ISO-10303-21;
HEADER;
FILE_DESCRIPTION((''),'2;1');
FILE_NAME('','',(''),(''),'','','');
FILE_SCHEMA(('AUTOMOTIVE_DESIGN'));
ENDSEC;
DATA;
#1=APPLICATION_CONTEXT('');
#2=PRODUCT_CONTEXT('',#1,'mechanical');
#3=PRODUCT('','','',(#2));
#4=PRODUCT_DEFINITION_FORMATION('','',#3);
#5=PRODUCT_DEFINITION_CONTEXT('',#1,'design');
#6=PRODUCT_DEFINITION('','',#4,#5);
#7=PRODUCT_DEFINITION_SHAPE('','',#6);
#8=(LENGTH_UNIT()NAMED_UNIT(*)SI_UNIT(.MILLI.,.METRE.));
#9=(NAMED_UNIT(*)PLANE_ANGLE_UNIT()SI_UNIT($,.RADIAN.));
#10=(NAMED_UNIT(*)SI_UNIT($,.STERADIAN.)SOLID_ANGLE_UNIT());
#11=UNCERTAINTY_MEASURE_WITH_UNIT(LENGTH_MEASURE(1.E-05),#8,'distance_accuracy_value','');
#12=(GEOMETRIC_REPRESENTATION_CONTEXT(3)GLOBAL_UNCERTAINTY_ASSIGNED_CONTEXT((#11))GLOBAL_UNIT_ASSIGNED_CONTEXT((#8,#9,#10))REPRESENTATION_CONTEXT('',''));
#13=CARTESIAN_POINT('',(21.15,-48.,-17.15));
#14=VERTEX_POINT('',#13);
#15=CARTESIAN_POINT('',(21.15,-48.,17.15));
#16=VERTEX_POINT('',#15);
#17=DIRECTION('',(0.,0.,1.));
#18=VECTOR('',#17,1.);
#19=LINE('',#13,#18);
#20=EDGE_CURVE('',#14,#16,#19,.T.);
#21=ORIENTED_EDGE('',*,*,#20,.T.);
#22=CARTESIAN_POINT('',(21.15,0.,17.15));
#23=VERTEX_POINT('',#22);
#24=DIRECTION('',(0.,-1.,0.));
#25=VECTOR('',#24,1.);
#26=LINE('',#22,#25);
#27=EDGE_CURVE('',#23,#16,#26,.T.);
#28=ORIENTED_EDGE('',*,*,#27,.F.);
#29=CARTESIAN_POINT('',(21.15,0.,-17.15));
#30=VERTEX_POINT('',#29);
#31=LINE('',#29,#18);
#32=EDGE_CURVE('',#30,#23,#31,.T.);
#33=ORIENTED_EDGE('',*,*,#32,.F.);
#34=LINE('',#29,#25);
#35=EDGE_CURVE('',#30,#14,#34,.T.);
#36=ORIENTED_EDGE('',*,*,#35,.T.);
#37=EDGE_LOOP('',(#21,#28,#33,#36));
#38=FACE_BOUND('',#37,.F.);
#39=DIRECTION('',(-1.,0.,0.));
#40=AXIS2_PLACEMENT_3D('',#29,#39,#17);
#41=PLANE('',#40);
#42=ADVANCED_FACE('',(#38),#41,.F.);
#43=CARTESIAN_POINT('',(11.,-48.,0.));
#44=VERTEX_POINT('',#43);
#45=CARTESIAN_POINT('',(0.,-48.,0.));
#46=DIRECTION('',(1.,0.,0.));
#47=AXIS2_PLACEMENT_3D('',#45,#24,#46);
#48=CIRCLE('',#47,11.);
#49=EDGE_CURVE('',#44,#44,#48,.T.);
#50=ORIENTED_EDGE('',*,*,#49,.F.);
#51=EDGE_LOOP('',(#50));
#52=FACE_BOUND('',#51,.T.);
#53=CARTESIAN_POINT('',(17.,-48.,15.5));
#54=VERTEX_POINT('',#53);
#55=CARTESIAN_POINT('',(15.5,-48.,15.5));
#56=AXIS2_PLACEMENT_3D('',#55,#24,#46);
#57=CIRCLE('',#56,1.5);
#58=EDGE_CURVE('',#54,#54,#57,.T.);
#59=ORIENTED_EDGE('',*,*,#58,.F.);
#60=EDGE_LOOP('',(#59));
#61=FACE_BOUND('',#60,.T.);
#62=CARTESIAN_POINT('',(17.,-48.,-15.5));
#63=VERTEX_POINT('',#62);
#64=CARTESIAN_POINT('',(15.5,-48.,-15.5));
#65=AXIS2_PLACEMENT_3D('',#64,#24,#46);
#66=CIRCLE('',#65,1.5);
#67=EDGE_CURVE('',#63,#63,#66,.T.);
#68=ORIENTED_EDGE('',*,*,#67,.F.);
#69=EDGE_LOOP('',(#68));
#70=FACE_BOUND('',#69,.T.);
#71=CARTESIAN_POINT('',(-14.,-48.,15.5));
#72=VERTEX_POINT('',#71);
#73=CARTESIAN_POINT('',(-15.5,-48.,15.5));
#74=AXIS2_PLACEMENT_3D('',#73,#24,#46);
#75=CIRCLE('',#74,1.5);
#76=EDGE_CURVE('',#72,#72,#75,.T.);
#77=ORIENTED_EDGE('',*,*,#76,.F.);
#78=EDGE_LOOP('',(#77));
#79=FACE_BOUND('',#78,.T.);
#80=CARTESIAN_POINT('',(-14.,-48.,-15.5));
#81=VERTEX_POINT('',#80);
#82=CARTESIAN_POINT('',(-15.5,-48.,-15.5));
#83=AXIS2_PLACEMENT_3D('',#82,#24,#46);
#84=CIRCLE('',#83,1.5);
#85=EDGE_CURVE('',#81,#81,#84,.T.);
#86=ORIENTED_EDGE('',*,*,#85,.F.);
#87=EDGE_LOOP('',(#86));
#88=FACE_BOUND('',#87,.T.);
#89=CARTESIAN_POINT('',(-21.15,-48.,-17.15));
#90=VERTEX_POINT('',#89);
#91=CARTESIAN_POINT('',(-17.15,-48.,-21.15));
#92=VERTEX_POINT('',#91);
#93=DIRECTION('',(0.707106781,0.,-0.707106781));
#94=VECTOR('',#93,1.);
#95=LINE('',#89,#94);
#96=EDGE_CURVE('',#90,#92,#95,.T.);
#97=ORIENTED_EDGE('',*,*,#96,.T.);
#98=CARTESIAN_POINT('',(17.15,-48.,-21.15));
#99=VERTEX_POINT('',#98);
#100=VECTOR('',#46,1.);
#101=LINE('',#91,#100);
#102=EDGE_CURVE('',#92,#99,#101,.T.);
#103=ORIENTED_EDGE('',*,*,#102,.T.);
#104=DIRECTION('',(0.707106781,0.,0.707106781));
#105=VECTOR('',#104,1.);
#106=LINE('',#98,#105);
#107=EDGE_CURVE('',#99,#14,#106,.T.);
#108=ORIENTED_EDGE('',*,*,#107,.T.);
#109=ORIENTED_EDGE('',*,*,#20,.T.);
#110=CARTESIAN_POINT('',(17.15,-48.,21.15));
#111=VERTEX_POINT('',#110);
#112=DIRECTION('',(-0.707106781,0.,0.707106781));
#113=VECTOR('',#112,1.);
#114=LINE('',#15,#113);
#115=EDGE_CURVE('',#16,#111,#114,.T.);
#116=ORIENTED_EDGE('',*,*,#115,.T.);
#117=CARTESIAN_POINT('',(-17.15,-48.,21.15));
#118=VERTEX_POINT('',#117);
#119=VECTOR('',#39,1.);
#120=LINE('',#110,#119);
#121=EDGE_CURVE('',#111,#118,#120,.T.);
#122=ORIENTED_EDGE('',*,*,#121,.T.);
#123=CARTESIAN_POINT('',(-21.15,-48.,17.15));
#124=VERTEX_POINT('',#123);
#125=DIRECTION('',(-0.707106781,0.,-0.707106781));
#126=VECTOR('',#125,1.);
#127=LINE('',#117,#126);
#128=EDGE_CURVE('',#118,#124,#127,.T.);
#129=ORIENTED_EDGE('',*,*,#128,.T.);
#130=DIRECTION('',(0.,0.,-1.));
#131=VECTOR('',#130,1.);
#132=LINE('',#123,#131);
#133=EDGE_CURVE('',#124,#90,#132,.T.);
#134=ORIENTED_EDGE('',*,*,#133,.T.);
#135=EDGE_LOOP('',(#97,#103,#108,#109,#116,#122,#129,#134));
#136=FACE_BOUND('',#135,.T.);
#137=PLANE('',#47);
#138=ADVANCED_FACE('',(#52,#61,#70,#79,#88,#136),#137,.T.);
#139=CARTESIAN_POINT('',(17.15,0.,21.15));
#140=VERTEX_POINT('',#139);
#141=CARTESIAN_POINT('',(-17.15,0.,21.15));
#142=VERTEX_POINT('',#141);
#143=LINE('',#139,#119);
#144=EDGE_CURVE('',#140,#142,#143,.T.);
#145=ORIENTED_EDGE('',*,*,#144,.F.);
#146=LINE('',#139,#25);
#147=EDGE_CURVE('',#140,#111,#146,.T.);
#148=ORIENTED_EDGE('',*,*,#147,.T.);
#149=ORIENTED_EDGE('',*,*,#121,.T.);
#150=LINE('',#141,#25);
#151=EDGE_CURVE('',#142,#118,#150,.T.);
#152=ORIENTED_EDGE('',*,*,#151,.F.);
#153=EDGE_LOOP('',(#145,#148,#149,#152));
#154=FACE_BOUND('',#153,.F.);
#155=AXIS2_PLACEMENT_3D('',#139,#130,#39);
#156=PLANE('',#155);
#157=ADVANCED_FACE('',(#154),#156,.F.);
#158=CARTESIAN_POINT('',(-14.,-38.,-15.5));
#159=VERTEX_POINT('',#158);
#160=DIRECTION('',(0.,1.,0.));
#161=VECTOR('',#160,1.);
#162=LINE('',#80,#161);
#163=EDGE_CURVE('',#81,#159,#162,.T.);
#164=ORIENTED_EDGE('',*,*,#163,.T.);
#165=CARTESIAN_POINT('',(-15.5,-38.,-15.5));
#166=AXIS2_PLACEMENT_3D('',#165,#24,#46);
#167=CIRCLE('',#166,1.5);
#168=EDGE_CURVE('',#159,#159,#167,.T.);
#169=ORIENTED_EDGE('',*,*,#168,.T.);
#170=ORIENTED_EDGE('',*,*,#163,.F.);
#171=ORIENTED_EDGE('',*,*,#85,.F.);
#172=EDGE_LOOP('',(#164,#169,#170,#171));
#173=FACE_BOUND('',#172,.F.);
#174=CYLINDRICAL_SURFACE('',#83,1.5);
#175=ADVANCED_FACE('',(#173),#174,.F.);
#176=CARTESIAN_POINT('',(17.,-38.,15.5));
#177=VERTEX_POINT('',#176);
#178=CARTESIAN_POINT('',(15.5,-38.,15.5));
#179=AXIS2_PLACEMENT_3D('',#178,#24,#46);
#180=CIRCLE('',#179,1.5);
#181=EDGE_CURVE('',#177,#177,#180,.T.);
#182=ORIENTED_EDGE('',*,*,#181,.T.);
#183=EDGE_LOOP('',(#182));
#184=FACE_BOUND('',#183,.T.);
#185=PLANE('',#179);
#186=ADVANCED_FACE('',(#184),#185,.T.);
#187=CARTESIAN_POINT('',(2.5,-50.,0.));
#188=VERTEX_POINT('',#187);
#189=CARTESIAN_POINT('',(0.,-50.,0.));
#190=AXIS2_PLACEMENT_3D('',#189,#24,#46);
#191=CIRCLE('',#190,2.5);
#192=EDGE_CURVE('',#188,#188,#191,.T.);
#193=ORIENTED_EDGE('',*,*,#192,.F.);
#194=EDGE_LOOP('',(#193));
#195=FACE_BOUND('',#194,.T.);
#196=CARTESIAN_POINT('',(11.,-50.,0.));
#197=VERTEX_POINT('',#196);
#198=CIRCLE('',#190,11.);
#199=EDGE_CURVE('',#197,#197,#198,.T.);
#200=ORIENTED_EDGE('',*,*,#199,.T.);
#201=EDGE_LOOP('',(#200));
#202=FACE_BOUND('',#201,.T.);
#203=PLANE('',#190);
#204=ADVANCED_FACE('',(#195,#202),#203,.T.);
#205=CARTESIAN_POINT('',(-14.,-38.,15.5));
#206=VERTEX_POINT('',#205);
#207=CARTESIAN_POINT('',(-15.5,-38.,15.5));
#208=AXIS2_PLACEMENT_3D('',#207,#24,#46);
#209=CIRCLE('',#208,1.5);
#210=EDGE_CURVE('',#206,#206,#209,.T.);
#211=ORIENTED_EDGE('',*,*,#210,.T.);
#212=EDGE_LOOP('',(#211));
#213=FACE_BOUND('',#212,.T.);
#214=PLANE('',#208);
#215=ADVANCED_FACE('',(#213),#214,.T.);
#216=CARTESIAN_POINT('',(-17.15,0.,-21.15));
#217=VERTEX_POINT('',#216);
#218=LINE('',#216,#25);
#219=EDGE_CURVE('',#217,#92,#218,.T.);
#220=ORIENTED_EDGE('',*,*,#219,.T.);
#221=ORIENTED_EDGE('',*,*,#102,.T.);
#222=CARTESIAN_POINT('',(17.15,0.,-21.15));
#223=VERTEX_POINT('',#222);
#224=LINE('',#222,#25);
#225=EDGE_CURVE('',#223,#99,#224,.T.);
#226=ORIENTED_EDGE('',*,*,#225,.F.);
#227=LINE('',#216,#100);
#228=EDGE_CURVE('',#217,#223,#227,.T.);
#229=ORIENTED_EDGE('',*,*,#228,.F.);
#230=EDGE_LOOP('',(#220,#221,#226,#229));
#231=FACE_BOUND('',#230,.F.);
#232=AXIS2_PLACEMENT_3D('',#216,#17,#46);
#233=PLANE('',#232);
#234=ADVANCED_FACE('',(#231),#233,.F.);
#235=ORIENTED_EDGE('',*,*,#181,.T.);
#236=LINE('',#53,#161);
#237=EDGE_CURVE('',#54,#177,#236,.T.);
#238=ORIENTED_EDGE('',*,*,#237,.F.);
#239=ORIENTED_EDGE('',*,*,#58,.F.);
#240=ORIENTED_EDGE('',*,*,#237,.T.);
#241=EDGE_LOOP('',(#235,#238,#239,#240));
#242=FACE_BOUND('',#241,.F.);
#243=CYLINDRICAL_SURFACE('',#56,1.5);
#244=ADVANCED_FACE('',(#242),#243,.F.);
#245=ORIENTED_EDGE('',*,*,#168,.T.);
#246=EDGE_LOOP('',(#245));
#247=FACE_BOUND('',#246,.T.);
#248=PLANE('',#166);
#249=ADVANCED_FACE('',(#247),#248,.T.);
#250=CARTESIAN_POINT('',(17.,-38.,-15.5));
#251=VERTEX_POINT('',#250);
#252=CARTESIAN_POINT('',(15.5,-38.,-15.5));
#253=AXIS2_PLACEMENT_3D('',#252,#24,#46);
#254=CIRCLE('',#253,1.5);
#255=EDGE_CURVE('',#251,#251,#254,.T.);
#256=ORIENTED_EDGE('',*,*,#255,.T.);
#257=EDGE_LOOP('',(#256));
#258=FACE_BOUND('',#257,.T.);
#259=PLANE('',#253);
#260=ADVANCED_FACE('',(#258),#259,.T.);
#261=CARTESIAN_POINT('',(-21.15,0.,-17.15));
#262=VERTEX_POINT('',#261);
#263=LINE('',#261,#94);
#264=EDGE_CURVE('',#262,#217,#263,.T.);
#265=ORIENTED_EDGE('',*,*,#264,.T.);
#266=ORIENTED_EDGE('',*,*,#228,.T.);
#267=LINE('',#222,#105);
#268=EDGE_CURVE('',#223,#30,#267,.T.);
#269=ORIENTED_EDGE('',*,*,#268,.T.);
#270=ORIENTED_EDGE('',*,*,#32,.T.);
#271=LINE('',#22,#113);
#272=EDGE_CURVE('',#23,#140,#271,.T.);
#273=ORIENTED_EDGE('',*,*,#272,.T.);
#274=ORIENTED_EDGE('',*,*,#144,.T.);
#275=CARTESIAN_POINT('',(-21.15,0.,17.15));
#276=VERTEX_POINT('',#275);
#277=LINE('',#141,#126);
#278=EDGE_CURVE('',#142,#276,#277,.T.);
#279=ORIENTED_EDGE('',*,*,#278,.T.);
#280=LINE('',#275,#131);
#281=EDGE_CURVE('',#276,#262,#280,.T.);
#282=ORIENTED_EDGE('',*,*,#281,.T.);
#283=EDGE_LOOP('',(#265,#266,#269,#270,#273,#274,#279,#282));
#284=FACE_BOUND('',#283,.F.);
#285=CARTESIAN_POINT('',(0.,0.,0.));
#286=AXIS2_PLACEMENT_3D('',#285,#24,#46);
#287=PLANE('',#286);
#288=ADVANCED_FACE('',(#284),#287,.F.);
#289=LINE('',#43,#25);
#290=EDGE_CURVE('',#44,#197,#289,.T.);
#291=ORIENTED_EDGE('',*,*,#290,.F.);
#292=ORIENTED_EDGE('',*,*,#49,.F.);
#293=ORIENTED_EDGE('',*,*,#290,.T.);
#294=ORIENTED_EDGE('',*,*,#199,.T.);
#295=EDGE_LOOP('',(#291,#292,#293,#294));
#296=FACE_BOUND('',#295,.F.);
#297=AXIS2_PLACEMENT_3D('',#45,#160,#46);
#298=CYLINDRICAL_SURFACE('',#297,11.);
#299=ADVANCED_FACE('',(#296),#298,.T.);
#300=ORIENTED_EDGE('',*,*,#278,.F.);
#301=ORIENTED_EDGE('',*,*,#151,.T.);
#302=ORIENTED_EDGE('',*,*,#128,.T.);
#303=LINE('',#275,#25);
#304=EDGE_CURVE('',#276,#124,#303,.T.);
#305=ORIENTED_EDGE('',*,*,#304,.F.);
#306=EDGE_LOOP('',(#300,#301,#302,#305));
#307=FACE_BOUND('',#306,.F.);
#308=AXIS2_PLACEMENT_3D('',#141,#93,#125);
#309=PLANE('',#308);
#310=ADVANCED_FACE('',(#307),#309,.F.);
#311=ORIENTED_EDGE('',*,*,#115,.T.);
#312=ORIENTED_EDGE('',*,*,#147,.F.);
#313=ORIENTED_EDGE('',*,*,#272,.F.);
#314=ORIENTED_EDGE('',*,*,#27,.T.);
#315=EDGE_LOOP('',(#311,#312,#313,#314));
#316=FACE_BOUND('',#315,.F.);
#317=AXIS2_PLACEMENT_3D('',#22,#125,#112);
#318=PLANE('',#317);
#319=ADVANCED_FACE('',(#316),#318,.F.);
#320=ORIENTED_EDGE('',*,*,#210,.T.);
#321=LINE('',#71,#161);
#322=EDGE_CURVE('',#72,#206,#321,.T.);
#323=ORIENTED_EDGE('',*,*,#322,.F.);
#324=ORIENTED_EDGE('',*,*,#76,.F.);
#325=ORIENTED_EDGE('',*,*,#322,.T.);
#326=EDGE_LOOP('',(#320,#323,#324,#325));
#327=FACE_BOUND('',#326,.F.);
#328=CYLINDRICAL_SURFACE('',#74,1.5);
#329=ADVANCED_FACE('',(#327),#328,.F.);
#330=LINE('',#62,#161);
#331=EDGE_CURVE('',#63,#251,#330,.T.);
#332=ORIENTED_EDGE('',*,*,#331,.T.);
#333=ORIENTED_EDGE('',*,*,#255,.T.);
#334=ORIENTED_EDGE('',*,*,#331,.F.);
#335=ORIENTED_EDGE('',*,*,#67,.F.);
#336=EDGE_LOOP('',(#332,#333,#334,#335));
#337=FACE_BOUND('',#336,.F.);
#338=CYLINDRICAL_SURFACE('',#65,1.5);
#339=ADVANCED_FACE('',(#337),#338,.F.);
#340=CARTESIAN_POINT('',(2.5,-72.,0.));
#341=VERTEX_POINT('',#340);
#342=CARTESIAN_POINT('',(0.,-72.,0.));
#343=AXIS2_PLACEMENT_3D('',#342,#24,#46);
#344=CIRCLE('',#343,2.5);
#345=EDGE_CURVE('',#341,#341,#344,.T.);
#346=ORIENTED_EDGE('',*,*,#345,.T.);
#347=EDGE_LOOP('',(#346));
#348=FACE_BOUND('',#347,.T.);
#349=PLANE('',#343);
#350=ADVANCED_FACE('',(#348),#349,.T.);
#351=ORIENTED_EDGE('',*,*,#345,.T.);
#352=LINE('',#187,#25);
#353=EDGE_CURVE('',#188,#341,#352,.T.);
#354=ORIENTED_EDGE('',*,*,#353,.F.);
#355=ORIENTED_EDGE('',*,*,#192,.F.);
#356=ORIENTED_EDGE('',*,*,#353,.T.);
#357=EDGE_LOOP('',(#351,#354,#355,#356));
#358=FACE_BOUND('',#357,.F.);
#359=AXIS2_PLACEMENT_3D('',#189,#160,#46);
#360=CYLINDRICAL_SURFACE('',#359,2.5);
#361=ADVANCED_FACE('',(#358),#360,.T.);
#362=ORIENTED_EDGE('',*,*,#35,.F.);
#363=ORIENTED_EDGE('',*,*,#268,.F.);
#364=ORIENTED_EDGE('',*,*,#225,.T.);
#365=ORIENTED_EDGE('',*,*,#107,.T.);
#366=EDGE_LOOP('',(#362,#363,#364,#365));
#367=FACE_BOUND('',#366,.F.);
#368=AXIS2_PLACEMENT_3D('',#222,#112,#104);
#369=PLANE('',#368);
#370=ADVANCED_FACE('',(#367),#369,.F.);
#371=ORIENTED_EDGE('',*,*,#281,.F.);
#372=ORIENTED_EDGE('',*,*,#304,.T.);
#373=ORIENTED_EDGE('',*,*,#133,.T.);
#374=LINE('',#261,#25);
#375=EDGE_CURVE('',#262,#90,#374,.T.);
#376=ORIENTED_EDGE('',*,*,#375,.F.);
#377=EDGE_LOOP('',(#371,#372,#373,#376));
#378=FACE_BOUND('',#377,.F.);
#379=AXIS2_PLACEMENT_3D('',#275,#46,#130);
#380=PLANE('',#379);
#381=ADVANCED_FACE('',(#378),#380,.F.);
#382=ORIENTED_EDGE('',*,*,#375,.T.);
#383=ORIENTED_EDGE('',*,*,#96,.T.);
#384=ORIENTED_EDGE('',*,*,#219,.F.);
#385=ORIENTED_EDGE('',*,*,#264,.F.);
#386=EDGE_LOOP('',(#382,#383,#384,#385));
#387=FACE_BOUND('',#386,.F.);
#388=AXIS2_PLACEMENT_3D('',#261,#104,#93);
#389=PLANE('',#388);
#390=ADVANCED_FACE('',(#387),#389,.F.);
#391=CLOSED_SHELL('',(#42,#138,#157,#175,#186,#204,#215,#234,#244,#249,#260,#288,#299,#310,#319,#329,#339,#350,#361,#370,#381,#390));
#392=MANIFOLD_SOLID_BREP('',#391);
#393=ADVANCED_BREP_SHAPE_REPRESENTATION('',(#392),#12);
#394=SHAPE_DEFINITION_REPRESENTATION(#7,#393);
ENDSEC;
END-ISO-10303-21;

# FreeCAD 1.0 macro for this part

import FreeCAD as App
import Part
import Sketcher

doc = App.newDocument("Part")
params = doc.addObject("Spreadsheet::Sheet", "Params")
for row, (alias, value) in enumerate([
    ("sketch1_width", "34.3 mm"),
    ("pad1_length", "48 mm"),
    ("sketch2_diameter", "22 mm"),
    ("pad2_length", "2 mm"),
    ("sketch3_diameter", "5 mm"),
    ("pad3_length", "22 mm"),
    ("sketch4_diameter", "3 mm"),
    ("pocket1_length", "10 mm"),
], start=1):
    params.set(f"A{row}", alias)
    params.set(f"B{row}", "=" + value)
    params.setAlias(f"B{row}", alias)

body = doc.addObject("PartDesign::Body", "Body")

sketch1 = doc.addObject("Sketcher::SketchObject", "Sketch")
body.addObject(sketch1)
sketch1.AttachmentSupport = (doc.XZ_Plane, [""])
sketch1.MapMode = "FlatFace"
sketch1.addGeometry([
    Part.LineSegment(App.Vector(17, 21, 0), App.Vector(-17, 21, 0)),
    Part.LineSegment(App.Vector(-17, 21, 0), App.Vector(-21, 17, 0)),
    Part.LineSegment(App.Vector(-21, 17, 0), App.Vector(-21, -17, 0)),
    Part.LineSegment(App.Vector(-21, -17, 0), App.Vector(-17, -21, 0)),
    Part.LineSegment(App.Vector(-17, -21, 0), App.Vector(17, -21, 0)),
    Part.LineSegment(App.Vector(17, -21, 0), App.Vector(21, -17, 0)),
    Part.LineSegment(App.Vector(21, -17, 0), App.Vector(21, 17, 0)),
    Part.LineSegment(App.Vector(21, 17, 0), App.Vector(17, 21, 0)),
], False)
sketch1.addConstraint([
    Sketcher.Constraint("Coincident", 0, 2, 1, 1),
    Sketcher.Constraint("Coincident", 1, 2, 2, 1),
    Sketcher.Constraint("Coincident", 2, 2, 3, 1),
    Sketcher.Constraint("Coincident", 3, 2, 4, 1),
    Sketcher.Constraint("Coincident", 4, 2, 5, 1),
    Sketcher.Constraint("Coincident", 5, 2, 6, 1),
    Sketcher.Constraint("Coincident", 6, 2, 7, 1),
    Sketcher.Constraint("Coincident", 7, 2, 0, 1),
    Sketcher.Constraint("Horizontal", 0),
    Sketcher.Constraint("Vertical", 2),
    Sketcher.Constraint("Horizontal", 4),
    Sketcher.Constraint("Vertical", 6),
    Sketcher.Constraint("Symmetric", 0, 2, 4, 2, -1, 1),
    Sketcher.Constraint("Symmetric", 1, 2, 5, 2, -1, 1),
    Sketcher.Constraint("Perpendicular", 1, 3),
    Sketcher.Constraint("Perpendicular", 5, 7),
    Sketcher.Constraint("Horizontal", 2, 2, 5, 2),
    Sketcher.Constraint("Horizontal", 1, 2, 6, 2),
    Sketcher.Constraint("Vertical", 0, 2, 3, 2),
    Sketcher.Constraint("Equal", 4, 2),
    Sketcher.Constraint("DistanceX", 0, 2, 0, 1, 34.3),
    Sketcher.Constraint("DistanceX", 1, 2, 0, 2, 4.0),
])
sketch1.setExpression("Constraints[20]", "Params.sketch1_width")
pad1 = doc.addObject("PartDesign::Pad", "Pad")
body.addObject(pad1)
pad1.Profile = sketch1
pad1.setExpression("Length", "Params.pad1_length")

sketch2 = doc.addObject("Sketcher::SketchObject", "Sketch001")
body.addObject(sketch2)
sketch2.AttachmentSupport = (doc.XZ_Plane, [""])
sketch2.MapMode = "FlatFace"
sketch2.AttachmentOffset = App.Placement(App.Vector(0, 0, 48), App.Rotation())
sketch2.addGeometry(Part.Circle(App.Vector(0, 0, 0), App.Vector(0, 0, 1), 11), False)
sketch2.addConstraint([
    Sketcher.Constraint("Coincident", 0, 3, -1, 1),
    Sketcher.Constraint("Diameter", 0, 22.0),
])
sketch2.setExpression("Constraints[1]", "Params.sketch2_diameter")
pad2 = doc.addObject("PartDesign::Pad", "Pad001")
body.addObject(pad2)
pad2.Profile = sketch2
pad2.setExpression("Length", "Params.pad2_length")

sketch3 = doc.addObject("Sketcher::SketchObject", "Sketch002")
body.addObject(sketch3)
sketch3.AttachmentSupport = (doc.XZ_Plane, [""])
sketch3.MapMode = "FlatFace"
sketch3.AttachmentOffset = App.Placement(App.Vector(0, 0, 50), App.Rotation())
sketch3.addGeometry(Part.Circle(App.Vector(0, 0, 0), App.Vector(0, 0, 1), 2.5), False)
sketch3.addConstraint([
    Sketcher.Constraint("Coincident", 0, 3, -1, 1),
    Sketcher.Constraint("Diameter", 0, 5.0),
])
sketch3.setExpression("Constraints[1]", "Params.sketch3_diameter")
pad3 = doc.addObject("PartDesign::Pad", "Pad002")
body.addObject(pad3)
pad3.Profile = sketch3
pad3.setExpression("Length", "Params.pad3_length")

sketch4 = doc.addObject("Sketcher::SketchObject", "Sketch003")
body.addObject(sketch4)
sketch4.AttachmentSupport = (doc.XZ_Plane, [""])
sketch4.MapMode = "FlatFace"
sketch4.AttachmentOffset = App.Placement(App.Vector(0, 0, 48), App.Rotation())
sketch4.addGeometry([
    Part.Circle(App.Vector(-15.5, 15.5, 0), App.Vector(0, 0, 1), 1.5),
    Part.Circle(App.Vector(15.5, 15.5, 0), App.Vector(0, 0, 1), 1.5),
    Part.Circle(App.Vector(-15.5, -15.5, 0), App.Vector(0, 0, 1), 1.5),
    Part.Circle(App.Vector(15.5, -15.5, 0), App.Vector(0, 0, 1), 1.5),
], False)
sketch4.addConstraint([
    Sketcher.Constraint("Equal", 0, 1),
    Sketcher.Constraint("Equal", 1, 2),
    Sketcher.Constraint("Equal", 2, 3),
    Sketcher.Constraint("Symmetric", 1, 3, 2, 3, -1, 1),
    Sketcher.Constraint("Symmetric", 0, 3, 3, 3, -1, 1),
    Sketcher.Constraint("Symmetric", 0, 3, 1, 3, -2),
    Sketcher.Constraint("Diameter", 0, 3.0),
    Sketcher.Constraint("DistanceX", 0, 3, 1, 3, 31.0),
    Sketcher.Constraint("DistanceY", 2, 3, 0, 3, 31.0),
])
sketch4.setExpression("Constraints[6]", "Params.sketch4_diameter")
pocket1 = doc.addObject("PartDesign::Pocket", "Pocket")
body.addObject(pocket1)
pocket1.Profile = sketch4
pocket1.setExpression("Length", "Params.pocket1_length")

doc.recompute()
